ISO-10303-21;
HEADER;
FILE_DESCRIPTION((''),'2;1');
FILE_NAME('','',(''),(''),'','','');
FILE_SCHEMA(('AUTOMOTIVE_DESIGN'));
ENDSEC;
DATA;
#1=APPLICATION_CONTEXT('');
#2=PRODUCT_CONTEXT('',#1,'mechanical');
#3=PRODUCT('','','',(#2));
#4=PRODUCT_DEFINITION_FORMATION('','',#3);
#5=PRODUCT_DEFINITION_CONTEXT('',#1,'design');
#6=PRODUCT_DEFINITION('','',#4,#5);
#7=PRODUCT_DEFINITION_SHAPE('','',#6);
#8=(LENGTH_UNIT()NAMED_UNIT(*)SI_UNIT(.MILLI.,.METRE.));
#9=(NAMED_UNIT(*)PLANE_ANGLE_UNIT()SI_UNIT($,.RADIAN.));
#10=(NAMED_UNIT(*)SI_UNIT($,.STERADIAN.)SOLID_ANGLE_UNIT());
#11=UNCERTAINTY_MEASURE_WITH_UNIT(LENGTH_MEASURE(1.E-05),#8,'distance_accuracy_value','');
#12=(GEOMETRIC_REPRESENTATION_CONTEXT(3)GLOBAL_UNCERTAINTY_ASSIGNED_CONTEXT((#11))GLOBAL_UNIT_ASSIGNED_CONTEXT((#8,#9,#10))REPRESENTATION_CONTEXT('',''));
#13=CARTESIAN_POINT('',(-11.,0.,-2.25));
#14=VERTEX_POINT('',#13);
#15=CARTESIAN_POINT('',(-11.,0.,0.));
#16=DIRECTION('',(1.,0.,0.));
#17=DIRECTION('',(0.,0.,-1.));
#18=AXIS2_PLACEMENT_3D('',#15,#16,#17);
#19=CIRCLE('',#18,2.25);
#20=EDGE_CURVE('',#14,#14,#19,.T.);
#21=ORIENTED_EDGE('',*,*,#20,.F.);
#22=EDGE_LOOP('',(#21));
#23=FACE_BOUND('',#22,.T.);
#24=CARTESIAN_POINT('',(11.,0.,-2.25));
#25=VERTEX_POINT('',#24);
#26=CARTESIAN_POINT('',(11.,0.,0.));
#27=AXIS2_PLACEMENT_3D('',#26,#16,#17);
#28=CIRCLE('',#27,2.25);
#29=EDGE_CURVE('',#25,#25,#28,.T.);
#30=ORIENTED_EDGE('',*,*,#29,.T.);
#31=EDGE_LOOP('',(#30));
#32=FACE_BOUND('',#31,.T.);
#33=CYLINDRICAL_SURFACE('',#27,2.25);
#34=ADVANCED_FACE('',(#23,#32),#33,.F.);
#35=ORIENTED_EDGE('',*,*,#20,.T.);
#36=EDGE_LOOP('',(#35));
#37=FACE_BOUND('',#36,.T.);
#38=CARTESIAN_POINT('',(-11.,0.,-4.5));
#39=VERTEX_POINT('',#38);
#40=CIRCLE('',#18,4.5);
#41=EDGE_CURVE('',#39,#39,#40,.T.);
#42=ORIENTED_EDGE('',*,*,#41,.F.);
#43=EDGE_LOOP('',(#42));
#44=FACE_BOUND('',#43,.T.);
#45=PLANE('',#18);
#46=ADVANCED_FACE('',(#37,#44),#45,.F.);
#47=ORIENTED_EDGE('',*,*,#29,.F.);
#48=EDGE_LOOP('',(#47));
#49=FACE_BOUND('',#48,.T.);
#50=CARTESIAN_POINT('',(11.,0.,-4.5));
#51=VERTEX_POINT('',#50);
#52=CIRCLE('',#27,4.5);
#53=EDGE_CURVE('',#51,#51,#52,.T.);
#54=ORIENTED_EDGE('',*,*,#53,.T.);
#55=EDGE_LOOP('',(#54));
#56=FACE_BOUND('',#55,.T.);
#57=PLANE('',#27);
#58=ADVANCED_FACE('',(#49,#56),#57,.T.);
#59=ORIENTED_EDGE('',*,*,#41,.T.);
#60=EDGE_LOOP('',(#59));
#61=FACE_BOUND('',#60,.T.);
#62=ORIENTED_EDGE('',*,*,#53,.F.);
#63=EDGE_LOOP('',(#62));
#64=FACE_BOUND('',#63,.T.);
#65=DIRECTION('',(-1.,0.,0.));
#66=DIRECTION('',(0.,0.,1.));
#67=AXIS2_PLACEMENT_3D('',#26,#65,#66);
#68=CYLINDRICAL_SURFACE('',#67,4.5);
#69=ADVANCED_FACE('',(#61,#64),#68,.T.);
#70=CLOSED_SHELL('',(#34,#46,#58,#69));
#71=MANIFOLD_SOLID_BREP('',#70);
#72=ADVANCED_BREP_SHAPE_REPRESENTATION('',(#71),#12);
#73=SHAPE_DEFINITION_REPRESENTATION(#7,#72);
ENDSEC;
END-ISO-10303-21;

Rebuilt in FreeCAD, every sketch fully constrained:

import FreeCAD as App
import Part
import Sketcher

doc = App.newDocument("Part")
body = doc.addObject("PartDesign::Body", "Body")

sketch1 = doc.addObject("Sketcher::SketchObject", "Sketch")
body.addObject(sketch1)
sketch1.AttachmentSupport = (doc.YZ_Plane, [""])
sketch1.MapMode = "FlatFace"
sketch1.addGeometry(Part.Circle(App.Vector(0, 0, 0), App.Vector(0, 0, 1), 4.5), False)
sketch1.addConstraint([
    Sketcher.Constraint("Coincident", 0, 3, -1, 1),
    Sketcher.Constraint("Diameter", 0, 9.0),
])
pad1 = doc.addObject("PartDesign::Pad", "Pad")
body.addObject(pad1)
pad1.Profile = sketch1
pad1.Length = 22
pad1.Midplane = True

sketch2 = doc.addObject("Sketcher::SketchObject", "Sketch001")
body.addObject(sketch2)
sketch2.AttachmentSupport = (doc.YZ_Plane, [""])
sketch2.MapMode = "FlatFace"
sketch2.AttachmentOffset = App.Placement(App.Vector(0, 0, 11), App.Rotation())
sketch2.addGeometry(Part.Circle(App.Vector(0, 0, 0), App.Vector(0, 0, 1), 2.25), False)
sketch2.addConstraint([
    Sketcher.Constraint("Coincident", 0, 3, -1, 1),
    Sketcher.Constraint("Diameter", 0, 4.5),
])
doc.recompute()
hole = doc.addObject("PartDesign::Hole", "Hole")
body.addObject(hole)
hole.Profile = sketch2
hole.ThreadType = "None"
hole.Diameter = 4.5
hole.DepthType = "ThroughAll"

doc.recompute()
